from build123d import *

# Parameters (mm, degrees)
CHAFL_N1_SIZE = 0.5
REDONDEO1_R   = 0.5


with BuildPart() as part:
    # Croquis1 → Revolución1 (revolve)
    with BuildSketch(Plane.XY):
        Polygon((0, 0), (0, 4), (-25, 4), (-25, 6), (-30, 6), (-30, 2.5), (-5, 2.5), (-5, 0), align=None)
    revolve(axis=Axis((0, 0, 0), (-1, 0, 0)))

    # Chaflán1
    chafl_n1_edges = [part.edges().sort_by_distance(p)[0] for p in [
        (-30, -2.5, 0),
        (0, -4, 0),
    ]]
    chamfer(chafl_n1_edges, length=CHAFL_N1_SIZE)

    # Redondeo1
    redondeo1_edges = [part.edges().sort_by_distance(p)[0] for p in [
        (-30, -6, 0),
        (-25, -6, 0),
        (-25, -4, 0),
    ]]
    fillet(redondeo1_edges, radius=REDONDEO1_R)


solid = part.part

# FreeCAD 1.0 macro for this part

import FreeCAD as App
import Part
import Sketcher


def edges_at(feature, points):
    """Names of the edges that pass closest to the given points."""
    edges = feature.Shape.Edges
    near = lambda p: min(range(len(edges)), key=lambda i: edges[i].distToShape(Part.Vertex(*p))[0])
    return sorted({f"Edge{near(p) + 1}" for p in points})

doc = App.newDocument("Part")
params = doc.addObject("Spreadsheet::Sheet", "Params")
for row, (alias, value) in enumerate([
    ("sketch1_width", "25 mm"),
    ("sketch1_width2", "5 mm"),
    ("sketch1_height", "4 mm"),
    ("sketch1_height2", "2 mm"),
    ("sketch1_height3", "3.5 mm"),
    ("revolution_angle", "360 deg"),
    ("chamfer_size", "0.5 mm"),
    ("fillet_radius", "0.5 mm"),
], start=1):
    params.set(f"A{row}", alias)
    params.set(f"B{row}", "=" + value)
    params.setAlias(f"B{row}", alias)

body = doc.addObject("PartDesign::Body", "Body")

# Sketch on XY plane
sketch1 = body.newObject("Sketcher::SketchObject", "Sketch")
sketch1.AttachmentSupport = (doc.getObject("XY_Plane"), [""])
sketch1.MapMode = "FlatFace"
sketch1.addGeometry([
    Part.LineSegment(App.Vector(0, 0, 0), App.Vector(0, 4, 0)),  # 0
    Part.LineSegment(App.Vector(0, 4, 0), App.Vector(-25, 4, 0)),  # 1
    Part.LineSegment(App.Vector(-25, 4, 0), App.Vector(-25, 6, 0)),  # 2
    Part.LineSegment(App.Vector(-25, 6, 0), App.Vector(-30, 6, 0)),  # 3
    Part.LineSegment(App.Vector(-30, 6, 0), App.Vector(-30, 2.5, 0)),  # 4
    Part.LineSegment(App.Vector(-30, 2.5, 0), App.Vector(-5, 2.5, 0)),  # 5
    Part.LineSegment(App.Vector(-5, 2.5, 0), App.Vector(-5, 0, 0)),  # 6
    Part.LineSegment(App.Vector(-5, 0, 0), App.Vector(0, 0, 0)),  # 7
], False)
sketch1.addConstraint([
    Sketcher.Constraint("Coincident", 0, 2, 1, 1),
    Sketcher.Constraint("Coincident", 1, 2, 2, 1),
    Sketcher.Constraint("Coincident", 2, 2, 3, 1),
    Sketcher.Constraint("Coincident", 3, 2, 4, 1),
    Sketcher.Constraint("Coincident", 4, 2, 5, 1),
    Sketcher.Constraint("Coincident", 5, 2, 6, 1),
    Sketcher.Constraint("Coincident", 6, 2, 7, 1),
    Sketcher.Constraint("Coincident", 7, 2, 0, 1),
    Sketcher.Constraint("Vertical", 0),
    Sketcher.Constraint("Horizontal", 1),
    Sketcher.Constraint("Vertical", 2),
    Sketcher.Constraint("Horizontal", 3),
    Sketcher.Constraint("Vertical", 4),
    Sketcher.Constraint("Horizontal", 5),
    Sketcher.Constraint("Vertical", 6),
    Sketcher.Constraint("Horizontal", 7),
    Sketcher.Constraint("Coincident", 7, 2, -1, 1),
    Sketcher.Constraint("Equal", 1, 5),
    Sketcher.Constraint("DistanceX", 1, 2, 1, 1, 25.0),
    Sketcher.Constraint("DistanceX", 3, 2, 3, 1, 5.0),
    Sketcher.Constraint("DistanceY", 0, 1, 0, 2, 4.0),
    Sketcher.Constraint("DistanceY", 2, 1, 2, 2, 2.0),
    Sketcher.Constraint("DistanceY", 4, 2, 4, 1, 3.5),
])
sketch1.setExpression("Constraints[18]", "Params.sketch1_width")
sketch1.setExpression("Constraints[19]", "Params.sketch1_width2")
sketch1.setExpression("Constraints[20]", "Params.sketch1_height")
sketch1.setExpression("Constraints[21]", "Params.sketch1_height2")
sketch1.setExpression("Constraints[22]", "Params.sketch1_height3")
revolution = body.newObject("PartDesign::Revolution", "Revolution")
revolution.Profile = sketch1
revolution.ReferenceAxis = (sketch1, ["H_Axis"])
revolution.setExpression("Angle", "Params.revolution_angle")
doc.recompute()

chamfer = body.newObject("PartDesign::Chamfer", "Chamfer")
chamfer.Base = (revolution, edges_at(revolution, [(-30, -2.5, 0), (0, -4, 0)]))
chamfer.setExpression("Size", "Params.chamfer_size")
doc.recompute()

fillet = body.newObject("PartDesign::Fillet", "Fillet")
fillet.Base = (chamfer, edges_at(chamfer, [(-30, -6, 0), (-25, -6, 0), (-25, -4, 0)]))
fillet.setExpression("Radius", "Params.fillet_radius")

doc.recompute()
